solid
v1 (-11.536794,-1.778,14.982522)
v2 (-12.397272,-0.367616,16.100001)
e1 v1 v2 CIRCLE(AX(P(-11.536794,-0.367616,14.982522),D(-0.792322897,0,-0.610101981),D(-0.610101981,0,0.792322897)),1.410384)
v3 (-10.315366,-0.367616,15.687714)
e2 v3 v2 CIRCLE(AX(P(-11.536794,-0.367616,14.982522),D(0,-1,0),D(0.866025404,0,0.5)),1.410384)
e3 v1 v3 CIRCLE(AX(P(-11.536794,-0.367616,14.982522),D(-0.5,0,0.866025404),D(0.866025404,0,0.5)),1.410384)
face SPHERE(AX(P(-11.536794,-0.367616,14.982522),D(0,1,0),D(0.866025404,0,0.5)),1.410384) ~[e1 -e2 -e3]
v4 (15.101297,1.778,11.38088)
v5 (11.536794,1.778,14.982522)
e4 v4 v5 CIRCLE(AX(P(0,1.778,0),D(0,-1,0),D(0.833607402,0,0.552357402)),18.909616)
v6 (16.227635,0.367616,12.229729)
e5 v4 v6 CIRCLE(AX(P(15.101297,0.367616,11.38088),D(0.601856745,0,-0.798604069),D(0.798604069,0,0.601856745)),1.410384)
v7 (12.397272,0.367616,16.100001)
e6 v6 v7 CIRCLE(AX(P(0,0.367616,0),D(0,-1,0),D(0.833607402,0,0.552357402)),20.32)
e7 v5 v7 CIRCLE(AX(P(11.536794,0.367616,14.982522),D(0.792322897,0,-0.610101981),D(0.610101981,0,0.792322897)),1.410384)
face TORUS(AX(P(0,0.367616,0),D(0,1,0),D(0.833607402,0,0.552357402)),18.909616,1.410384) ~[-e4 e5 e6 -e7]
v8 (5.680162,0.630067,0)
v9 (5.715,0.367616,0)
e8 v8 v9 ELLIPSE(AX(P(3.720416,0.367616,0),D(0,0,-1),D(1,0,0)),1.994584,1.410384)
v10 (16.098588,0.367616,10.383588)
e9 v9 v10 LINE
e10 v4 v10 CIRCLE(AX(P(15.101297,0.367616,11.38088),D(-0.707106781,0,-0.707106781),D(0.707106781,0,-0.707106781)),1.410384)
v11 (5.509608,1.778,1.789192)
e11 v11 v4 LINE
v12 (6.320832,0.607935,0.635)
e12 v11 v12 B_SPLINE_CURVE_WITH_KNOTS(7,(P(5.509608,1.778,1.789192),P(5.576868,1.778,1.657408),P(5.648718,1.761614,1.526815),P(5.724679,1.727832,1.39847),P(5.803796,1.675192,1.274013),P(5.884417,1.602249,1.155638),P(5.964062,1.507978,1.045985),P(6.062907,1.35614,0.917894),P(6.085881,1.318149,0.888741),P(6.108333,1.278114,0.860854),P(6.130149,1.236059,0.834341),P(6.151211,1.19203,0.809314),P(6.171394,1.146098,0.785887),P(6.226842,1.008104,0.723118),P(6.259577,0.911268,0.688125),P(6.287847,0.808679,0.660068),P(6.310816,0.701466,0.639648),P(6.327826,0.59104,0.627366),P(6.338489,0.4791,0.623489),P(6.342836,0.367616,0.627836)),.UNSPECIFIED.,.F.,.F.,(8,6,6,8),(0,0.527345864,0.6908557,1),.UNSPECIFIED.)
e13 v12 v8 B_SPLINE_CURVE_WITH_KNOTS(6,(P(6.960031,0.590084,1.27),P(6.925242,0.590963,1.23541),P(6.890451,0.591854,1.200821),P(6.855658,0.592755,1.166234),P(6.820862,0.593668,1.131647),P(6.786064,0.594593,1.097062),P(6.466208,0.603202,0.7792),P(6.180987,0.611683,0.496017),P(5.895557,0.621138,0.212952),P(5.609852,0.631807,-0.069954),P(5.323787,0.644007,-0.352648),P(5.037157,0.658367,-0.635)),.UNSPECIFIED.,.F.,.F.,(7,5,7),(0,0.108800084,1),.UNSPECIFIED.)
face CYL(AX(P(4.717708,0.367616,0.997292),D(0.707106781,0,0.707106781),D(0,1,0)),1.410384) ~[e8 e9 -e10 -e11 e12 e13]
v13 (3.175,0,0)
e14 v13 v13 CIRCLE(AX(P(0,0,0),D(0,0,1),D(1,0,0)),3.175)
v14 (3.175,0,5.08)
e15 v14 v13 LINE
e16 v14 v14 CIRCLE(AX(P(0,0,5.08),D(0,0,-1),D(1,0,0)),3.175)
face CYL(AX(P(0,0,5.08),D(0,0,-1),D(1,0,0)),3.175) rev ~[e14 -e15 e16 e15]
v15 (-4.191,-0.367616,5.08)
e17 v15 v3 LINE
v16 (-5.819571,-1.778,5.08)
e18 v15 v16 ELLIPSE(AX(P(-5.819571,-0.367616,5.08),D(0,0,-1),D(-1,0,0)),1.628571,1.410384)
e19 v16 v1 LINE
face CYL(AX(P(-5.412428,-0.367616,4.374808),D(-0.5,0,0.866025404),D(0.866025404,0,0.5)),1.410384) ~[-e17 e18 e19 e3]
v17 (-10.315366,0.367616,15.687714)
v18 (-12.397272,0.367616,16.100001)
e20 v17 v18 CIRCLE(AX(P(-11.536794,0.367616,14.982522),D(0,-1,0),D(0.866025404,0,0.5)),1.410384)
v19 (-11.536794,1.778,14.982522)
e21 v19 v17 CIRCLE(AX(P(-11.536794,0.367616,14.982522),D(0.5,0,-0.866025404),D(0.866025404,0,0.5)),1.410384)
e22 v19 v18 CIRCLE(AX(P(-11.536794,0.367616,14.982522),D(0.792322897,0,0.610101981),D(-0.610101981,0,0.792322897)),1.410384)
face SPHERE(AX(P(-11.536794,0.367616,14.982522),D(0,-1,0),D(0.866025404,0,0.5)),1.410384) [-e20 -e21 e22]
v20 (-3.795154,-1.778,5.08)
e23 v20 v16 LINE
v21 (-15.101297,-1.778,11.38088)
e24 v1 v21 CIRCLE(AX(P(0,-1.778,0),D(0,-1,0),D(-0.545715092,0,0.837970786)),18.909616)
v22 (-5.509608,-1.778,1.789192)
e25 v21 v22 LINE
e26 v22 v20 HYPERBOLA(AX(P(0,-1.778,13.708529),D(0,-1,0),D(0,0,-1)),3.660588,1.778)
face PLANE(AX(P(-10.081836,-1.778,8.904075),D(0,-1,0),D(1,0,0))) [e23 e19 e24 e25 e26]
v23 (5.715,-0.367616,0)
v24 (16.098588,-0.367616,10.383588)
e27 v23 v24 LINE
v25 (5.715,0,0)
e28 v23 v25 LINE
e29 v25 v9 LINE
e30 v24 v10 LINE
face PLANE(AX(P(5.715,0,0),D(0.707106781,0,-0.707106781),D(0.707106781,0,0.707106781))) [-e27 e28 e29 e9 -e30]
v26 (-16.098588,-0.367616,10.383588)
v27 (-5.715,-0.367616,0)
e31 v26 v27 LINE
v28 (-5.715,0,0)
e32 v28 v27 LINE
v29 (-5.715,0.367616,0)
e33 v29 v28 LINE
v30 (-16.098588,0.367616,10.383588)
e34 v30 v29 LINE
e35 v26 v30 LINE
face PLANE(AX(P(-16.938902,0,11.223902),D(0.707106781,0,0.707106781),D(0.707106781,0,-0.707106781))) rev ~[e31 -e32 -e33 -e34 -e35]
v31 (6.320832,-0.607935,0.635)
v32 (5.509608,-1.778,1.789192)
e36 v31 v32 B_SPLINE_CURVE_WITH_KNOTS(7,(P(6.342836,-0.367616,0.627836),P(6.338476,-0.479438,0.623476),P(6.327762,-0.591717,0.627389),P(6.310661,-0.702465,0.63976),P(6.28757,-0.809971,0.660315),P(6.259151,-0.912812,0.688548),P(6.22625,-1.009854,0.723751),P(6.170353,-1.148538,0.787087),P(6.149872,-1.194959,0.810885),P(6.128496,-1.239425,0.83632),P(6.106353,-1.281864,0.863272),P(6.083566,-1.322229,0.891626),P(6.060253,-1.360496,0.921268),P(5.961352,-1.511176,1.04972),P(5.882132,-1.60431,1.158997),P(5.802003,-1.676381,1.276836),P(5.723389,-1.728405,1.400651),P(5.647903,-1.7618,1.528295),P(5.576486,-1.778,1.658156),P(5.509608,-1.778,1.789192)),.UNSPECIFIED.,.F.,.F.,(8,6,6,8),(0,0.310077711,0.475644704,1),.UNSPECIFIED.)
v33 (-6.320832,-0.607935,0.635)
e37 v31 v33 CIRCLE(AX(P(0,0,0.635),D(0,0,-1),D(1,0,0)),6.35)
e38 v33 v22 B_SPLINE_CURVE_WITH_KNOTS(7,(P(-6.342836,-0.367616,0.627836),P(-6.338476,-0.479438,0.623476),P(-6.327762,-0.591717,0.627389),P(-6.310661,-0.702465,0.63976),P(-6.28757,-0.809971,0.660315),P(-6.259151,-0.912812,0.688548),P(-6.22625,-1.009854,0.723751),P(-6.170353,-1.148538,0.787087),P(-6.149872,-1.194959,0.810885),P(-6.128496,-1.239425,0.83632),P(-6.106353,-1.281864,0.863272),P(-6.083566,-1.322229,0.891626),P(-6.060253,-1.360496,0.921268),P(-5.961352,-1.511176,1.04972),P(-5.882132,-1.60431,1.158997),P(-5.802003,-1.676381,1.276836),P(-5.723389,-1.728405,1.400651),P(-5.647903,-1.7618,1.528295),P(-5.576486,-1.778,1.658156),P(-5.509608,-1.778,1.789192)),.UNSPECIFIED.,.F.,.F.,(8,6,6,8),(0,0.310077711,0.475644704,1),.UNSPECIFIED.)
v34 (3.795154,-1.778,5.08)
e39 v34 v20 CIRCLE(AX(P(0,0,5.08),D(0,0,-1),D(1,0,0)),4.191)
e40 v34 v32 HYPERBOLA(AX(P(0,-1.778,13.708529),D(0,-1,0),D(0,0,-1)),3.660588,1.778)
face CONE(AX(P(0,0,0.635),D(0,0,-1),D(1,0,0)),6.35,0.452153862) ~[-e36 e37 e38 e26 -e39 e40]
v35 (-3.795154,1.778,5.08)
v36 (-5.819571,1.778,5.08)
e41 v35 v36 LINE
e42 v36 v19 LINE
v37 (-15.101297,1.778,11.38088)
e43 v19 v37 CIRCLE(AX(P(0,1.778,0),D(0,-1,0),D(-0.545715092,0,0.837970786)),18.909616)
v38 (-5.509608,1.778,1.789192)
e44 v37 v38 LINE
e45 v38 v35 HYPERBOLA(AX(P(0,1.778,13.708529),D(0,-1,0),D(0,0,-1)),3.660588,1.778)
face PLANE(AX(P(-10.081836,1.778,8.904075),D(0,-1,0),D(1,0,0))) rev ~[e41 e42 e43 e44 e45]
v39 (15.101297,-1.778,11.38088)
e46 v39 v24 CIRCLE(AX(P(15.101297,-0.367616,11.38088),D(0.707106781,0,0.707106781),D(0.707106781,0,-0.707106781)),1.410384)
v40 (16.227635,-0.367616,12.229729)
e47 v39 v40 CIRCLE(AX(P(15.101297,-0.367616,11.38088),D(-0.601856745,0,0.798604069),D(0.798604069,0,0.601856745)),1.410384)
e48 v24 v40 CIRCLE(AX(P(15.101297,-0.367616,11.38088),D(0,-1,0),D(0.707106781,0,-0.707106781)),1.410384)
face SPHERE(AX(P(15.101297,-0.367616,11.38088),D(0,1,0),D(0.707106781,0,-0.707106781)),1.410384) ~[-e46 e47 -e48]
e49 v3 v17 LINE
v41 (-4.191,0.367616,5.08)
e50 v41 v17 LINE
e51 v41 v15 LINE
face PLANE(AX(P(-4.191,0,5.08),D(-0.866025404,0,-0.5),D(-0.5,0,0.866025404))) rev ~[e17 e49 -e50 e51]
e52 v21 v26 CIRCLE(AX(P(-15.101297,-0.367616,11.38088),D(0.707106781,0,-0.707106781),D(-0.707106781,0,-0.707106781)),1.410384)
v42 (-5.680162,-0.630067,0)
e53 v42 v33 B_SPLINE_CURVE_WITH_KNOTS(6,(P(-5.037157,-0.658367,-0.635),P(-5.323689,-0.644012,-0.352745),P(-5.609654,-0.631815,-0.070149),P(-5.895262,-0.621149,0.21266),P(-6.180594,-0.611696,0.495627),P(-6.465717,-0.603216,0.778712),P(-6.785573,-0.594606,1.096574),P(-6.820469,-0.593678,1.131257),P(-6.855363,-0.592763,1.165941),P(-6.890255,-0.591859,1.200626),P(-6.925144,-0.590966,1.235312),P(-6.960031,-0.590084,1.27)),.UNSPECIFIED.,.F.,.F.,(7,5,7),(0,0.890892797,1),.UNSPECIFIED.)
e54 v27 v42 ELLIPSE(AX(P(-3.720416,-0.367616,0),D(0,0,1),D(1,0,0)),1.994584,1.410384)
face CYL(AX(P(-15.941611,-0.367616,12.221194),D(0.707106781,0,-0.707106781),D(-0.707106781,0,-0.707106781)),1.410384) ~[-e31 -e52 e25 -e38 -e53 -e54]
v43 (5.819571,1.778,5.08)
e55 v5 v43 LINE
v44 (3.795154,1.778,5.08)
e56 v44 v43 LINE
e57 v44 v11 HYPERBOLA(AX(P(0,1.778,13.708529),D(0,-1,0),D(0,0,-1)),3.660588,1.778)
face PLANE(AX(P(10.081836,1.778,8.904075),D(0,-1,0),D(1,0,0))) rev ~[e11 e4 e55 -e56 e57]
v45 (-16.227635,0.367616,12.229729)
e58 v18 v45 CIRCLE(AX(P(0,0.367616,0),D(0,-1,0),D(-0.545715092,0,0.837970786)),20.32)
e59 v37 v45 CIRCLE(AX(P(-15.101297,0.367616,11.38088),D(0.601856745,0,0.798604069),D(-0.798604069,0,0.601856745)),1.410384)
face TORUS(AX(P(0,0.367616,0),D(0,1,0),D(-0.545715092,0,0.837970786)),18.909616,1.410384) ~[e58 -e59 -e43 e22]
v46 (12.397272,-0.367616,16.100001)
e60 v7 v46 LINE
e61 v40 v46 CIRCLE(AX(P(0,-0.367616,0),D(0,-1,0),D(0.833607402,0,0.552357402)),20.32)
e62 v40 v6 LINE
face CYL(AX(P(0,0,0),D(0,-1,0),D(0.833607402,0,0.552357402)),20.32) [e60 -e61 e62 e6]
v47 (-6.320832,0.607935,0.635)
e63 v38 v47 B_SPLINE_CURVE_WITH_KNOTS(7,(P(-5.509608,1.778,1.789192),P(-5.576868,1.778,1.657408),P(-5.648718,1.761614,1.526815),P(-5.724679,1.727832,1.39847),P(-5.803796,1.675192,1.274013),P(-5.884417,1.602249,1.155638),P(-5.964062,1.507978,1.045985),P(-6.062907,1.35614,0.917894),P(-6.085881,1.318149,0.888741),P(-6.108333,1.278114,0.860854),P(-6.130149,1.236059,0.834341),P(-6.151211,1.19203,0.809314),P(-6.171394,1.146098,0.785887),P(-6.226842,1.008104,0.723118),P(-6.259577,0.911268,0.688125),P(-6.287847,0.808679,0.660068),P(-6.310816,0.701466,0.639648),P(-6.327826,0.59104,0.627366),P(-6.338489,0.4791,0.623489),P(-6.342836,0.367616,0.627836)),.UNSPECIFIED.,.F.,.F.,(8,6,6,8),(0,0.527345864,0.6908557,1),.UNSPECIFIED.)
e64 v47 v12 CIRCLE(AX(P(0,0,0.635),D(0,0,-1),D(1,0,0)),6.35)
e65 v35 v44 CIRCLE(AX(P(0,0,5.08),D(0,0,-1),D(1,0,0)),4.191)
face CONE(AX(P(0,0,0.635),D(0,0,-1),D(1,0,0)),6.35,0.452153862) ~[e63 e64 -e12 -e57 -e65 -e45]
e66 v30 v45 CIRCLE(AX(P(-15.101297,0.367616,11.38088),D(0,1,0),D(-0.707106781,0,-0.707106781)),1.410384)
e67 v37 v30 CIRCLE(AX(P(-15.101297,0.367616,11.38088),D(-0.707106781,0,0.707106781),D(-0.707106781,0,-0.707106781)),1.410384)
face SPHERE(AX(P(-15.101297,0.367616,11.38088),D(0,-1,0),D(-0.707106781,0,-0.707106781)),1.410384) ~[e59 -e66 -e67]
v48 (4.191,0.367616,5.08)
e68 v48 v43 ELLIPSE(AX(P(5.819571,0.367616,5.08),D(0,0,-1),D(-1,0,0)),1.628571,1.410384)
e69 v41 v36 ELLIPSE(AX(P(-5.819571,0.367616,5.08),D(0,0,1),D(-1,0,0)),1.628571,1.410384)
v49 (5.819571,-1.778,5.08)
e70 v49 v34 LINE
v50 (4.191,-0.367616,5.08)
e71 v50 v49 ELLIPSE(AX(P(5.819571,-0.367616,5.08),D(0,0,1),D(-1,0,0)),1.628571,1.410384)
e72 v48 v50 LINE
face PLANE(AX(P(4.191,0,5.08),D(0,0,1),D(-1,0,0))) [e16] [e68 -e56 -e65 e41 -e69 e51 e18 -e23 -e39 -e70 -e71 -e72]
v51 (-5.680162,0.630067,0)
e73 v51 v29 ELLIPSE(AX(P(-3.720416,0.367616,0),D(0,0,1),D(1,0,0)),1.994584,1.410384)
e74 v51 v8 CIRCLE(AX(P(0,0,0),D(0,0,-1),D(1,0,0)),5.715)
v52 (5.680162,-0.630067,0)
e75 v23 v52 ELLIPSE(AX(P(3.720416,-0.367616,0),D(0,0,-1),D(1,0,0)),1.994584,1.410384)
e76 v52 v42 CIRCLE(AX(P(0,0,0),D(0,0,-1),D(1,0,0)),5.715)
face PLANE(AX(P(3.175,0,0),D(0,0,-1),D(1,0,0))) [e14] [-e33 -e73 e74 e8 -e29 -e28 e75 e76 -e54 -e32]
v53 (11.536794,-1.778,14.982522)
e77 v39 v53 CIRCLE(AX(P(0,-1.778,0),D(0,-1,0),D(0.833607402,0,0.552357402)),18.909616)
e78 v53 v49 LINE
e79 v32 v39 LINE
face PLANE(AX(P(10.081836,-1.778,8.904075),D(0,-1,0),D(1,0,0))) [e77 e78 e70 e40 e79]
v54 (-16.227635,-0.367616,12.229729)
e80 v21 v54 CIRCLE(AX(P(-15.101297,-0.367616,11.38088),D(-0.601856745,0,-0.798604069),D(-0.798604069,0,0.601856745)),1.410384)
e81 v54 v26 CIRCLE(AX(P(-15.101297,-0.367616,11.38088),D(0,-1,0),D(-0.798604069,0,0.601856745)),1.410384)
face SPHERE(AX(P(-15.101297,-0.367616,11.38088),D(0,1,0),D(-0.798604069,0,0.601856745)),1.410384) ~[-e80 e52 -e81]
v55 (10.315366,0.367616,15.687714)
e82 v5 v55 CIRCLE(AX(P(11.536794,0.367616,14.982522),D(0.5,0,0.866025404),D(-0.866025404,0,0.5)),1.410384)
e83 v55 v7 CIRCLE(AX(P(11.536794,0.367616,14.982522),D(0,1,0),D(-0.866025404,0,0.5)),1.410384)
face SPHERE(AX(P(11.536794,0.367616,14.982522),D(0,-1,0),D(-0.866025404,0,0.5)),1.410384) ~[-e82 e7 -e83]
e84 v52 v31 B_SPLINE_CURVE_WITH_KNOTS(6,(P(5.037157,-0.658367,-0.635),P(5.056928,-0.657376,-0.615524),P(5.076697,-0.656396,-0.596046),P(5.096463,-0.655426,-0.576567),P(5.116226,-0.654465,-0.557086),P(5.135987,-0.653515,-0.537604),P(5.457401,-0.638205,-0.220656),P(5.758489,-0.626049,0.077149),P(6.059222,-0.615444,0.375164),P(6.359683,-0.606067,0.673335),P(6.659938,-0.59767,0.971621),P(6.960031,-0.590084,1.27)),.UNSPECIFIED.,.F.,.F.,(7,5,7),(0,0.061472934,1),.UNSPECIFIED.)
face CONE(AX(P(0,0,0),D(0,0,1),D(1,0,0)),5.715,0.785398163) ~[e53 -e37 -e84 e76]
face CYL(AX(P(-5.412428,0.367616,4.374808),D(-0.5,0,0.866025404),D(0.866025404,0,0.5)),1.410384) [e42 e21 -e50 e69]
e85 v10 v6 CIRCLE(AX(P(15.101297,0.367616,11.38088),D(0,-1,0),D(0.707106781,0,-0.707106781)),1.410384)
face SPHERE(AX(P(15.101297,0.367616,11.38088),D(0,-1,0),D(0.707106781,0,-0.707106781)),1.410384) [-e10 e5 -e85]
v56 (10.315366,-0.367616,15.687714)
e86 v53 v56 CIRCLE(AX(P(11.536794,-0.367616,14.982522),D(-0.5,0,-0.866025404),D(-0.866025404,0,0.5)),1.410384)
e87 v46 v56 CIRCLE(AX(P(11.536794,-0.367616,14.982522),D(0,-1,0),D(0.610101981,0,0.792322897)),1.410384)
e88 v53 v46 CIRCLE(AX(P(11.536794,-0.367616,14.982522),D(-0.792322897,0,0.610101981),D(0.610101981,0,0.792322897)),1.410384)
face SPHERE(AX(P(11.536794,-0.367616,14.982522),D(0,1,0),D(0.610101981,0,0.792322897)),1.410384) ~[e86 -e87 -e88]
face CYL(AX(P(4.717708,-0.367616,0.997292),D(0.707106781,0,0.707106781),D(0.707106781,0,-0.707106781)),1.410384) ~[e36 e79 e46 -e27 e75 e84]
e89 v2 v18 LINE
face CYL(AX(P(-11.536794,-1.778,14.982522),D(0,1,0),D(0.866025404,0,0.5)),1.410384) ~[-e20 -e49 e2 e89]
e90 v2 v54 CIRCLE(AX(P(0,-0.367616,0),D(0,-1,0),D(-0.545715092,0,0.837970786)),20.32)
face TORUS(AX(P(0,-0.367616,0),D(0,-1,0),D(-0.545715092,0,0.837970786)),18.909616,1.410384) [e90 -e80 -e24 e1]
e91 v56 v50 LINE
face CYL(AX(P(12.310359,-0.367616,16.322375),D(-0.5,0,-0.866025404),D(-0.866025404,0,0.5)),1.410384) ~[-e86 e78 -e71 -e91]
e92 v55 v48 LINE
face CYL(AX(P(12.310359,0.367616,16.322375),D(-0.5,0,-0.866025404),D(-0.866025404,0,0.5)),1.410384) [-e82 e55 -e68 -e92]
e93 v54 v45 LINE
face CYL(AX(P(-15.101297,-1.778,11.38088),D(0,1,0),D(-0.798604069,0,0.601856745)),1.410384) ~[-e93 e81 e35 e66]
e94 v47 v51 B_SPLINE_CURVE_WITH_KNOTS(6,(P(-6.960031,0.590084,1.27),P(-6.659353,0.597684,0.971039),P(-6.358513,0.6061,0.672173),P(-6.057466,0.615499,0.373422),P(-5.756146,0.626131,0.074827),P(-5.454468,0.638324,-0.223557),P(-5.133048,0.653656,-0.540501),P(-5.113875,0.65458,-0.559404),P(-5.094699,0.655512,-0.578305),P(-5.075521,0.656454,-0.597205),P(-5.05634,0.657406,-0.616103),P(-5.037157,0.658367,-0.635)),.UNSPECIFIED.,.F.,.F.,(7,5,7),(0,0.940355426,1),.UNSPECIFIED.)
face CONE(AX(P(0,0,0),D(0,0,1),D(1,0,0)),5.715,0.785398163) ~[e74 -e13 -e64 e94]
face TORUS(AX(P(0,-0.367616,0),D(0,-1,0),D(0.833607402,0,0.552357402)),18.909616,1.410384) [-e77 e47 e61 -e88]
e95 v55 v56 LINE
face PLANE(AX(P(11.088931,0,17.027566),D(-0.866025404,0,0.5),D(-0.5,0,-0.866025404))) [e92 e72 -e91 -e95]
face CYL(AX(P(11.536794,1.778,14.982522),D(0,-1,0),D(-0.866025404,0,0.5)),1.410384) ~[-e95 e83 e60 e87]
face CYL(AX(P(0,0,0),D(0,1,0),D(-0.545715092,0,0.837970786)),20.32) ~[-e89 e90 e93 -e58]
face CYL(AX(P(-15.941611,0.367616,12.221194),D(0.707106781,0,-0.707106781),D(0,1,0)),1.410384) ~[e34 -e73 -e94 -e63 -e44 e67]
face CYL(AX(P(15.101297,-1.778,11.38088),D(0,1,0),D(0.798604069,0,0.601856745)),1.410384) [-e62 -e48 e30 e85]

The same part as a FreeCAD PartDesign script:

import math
import FreeCAD as App
import Part
import Sketcher
from FreeCAD import Vector
Q = App.Units.Quantity


def edges_at(feature, points):
    """Names of the edges that pass closest to the given points."""
    edges = feature.Shape.Edges
    near = lambda p: min(range(len(edges)), key=lambda i: edges[i].distToShape(Part.Vertex(*p))[0])
    return sorted({f"Edge{near(p) + 1}" for p in points})


def add_polygon(sketch, points):
    """Adds a closed chain of lines whose ends are joined by coincident constraints."""
    first, n = sketch.GeometryCount, len(points)
    for a, b in zip(points, points[1:] + points[:1]):
        sketch.addGeometry(Part.LineSegment(App.Vector(*a, 0), App.Vector(*b, 0)), False)
    for i in range(n):
        sketch.addConstraint(Sketcher.Constraint("Coincident", first + i, 2, first + (i + 1) % n, 1))

doc = App.newDocument("Part")
params = doc.addObject("Spreadsheet::Sheet", "Params")
for row, (alias, value) in enumerate([
    ("sketch1_width", "0.1 in"),
    ("sketch1_height", "0.2 in"),
    ("sketch1_width2", "0.04 in"),
    ("revolution_angle", "360 deg"),
    ("sketch2_radius", "0.8 in"),
    ("sketch2_width", "0.1 in"),
    ("sketch2_height", "0.2 in"),
    ("sketch2_width2", "0.04 in"),
    ("pad1_length", "0.14 in"),
    ("fillet_radius", "1.410384 mm"),
    ("fillet2_radius", "1.410384 mm"),
], start=1):
    params.set(f"A{row}", alias)
    params.set(f"B{row}", "=" + value)
    params.setAlias(f"B{row}", alias)

body = doc.addObject("PartDesign::Body", "Body")

sketch1 = body.newObject("Sketcher::SketchObject", "Sketch")
sketch1.AttachmentSupport = (doc.getObject("XZ_Plane"), [""])
sketch1.MapMode = "FlatFace"
add_polygon(sketch1, [(3.2, 5.1), (3.2, 0), (5.7, 0), (6.3, 0.6), (4.2, 5.1)])
sketch1.addConstraint([
    Sketcher.Constraint("Vertical", 0),
    Sketcher.Constraint("Horizontal", 1),
    Sketcher.Constraint("Horizontal", 4),
    Sketcher.Constraint("PointOnObject", 0, 2, -1),
    Sketcher.Constraint("DistanceX", 1, 1, 1, 2, Q("0.1 in")),
    Sketcher.Constraint("DistanceY", 0, 2, 0, 1, Q("0.2 in")),
    Sketcher.Constraint("Angle", 2, Q("45 deg")),
    Sketcher.Constraint("DistanceX", 4, 2, 4, 1, Q("0.04 in")),
    Sketcher.Constraint("DistanceX", -1, 1, 2, 2, Q("0.25 in")),
    Sketcher.Constraint("DistanceX", -1, 1, 0, 2, Q("0.125 in")),
])
sketch1.setExpression("Constraints[9]", "Params.sketch1_width")
sketch1.setExpression("Constraints[10]", "Params.sketch1_height")
sketch1.setExpression("Constraints[12]", "Params.sketch1_width2")
revolution = body.newObject("PartDesign::Revolution", "Revolution")
revolution.Profile = sketch1
revolution.ReferenceAxis = (sketch1, ["V_Axis"])
revolution.setExpression("Angle", "Params.revolution_angle")

sketch2 = body.newObject("Sketcher::SketchObject", "Sketch001")
sketch2.AttachmentSupport = (doc.getObject("XZ_Plane"), [""])
sketch2.MapMode = "FlatFace"
sketch2.addGeometry([
    Part.LineSegment(Vector(-16.9, 11.2, 0), Vector(-5.7, 0, 0)),
    Part.LineSegment(Vector(-5.7, 0, 0), Vector(-3.2, 0, 0)),
    Part.LineSegment(Vector(-3.2, 0, 0), Vector(-3.2, 5.1, 0)),
    Part.LineSegment(Vector(-3.2, 5.1, 0), Vector(-4.2, 5.1, 0)),
    Part.LineSegment(Vector(-4.2, 5.1, 0), Vector(-11.1, 17, 0)),
    Part.ArcOfCircle(Part.Circle(Vector(0, 0, 0), Vector(0, 0, 1), 20.3), math.radians(123), math.radians(146)),
    Part.ArcOfCircle(Part.Circle(Vector(0, 0, 0), Vector(0, 0, 1), 20.3), math.radians(34), math.radians(57)),
    Part.LineSegment(Vector(11.1, 17, 0), Vector(4.2, 5.1, 0)),
    Part.LineSegment(Vector(4.2, 5.1, 0), Vector(3.2, 5.1, 0)),
    Part.LineSegment(Vector(3.2, 5.1, 0), Vector(3.2, 0, 0)),
    Part.LineSegment(Vector(3.2, 0, 0), Vector(5.7, 0, 0)),
    Part.LineSegment(Vector(5.7, 0, 0), Vector(16.9, 11.2, 0)),
], False)
sketch2.addConstraint([
    Sketcher.Constraint("Coincident", 0, 2, 1, 1),
    Sketcher.Constraint("Coincident", 1, 2, 2, 1),
    Sketcher.Constraint("Coincident", 2, 2, 3, 1),
    Sketcher.Constraint("Coincident", 3, 2, 4, 1),
    Sketcher.Constraint("Coincident", 4, 2, 5, 1),
    Sketcher.Constraint("Coincident", 5, 2, 0, 1),
    Sketcher.Constraint("Coincident", 6, 2, 7, 1),
    Sketcher.Constraint("Coincident", 7, 2, 8, 1),
    Sketcher.Constraint("Coincident", 8, 2, 9, 1),
    Sketcher.Constraint("Coincident", 9, 2, 10, 1),
    Sketcher.Constraint("Coincident", 10, 2, 11, 1),
    Sketcher.Constraint("Coincident", 11, 2, 6, 1),
    Sketcher.Constraint("Horizontal", 1),
    Sketcher.Constraint("Vertical", 2),
    Sketcher.Constraint("Horizontal", 3),
    Sketcher.Constraint("Horizontal", 8),
    Sketcher.Constraint("Vertical", 9),
    Sketcher.Constraint("Horizontal", 10),
    Sketcher.Constraint("Coincident", 5, 3, -1, 1),
    Sketcher.Constraint("Coincident", 6, 3, -1, 1),
    Sketcher.Constraint("Equal", 5, 6),
    Sketcher.Constraint("Symmetric", 1, 2, 9, 2, -1, 1),
    Sketcher.Constraint("Symmetric", 3, 2, 7, 2, -2),
    Sketcher.Constraint("Symmetric", 0, 2, 10, 2, -2),
    Sketcher.Constraint("Perpendicular", 0, 11),
    Sketcher.Constraint("Horizontal", 4, 2, 6, 2),
    Sketcher.Constraint("Horizontal", 5, 2, 11, 2),
    Sketcher.Constraint("Radius", 5, Q("0.8 in")),
    Sketcher.Constraint("DistanceX", 1, 1, 1, 2, Q("0.1 in")),
    Sketcher.Constraint("DistanceY", 2, 1, 2, 2, Q("0.2 in")),
    Sketcher.Constraint("Angle", 4, Q("120 deg")),
    Sketcher.Constraint("DistanceX", 3, 2, 3, 1, Q("0.04 in")),
    Sketcher.Constraint("DistanceX", 2, 2, 7, 2, Q("0.29 in")),
])
sketch2.setExpression("Constraints[27]", "Params.sketch2_radius")
sketch2.setExpression("Constraints[28]", "Params.sketch2_width")
sketch2.setExpression("Constraints[29]", "Params.sketch2_height")
sketch2.setExpression("Constraints[31]", "Params.sketch2_width2")
pad1 = body.newObject("PartDesign::Pad", "Pad")
pad1.Profile = sketch2
pad1.setExpression("Length", "Params.pad1_length")
pad1.Midplane = True
doc.recompute()

fillet = body.newObject("PartDesign::Fillet", "Fillet")
fillet.Base = (pad1, edges_at(pad1, [
    (-7.64, -1.778, 11.054),
    (-11.327, -1.778, 5.612),
    (-11.327, 1.778, 5.612),
    (-7.64, 1.778, 11.054),
    (-14.311, 1.778, 14.425),
    (-16.939, 0, 11.224),
    (-14.311, -1.778, 14.425),
    (-11.089, 0, 17.028),
]))
fillet.setExpression("Radius", "Params.fillet_radius")
doc.recompute()

fillet2 = body.newObject("PartDesign::Fillet", "Fillet001")
fillet2.Base = (fillet, edges_at(fillet, [
    (11.327, 1.778, 5.612),
    (11.327, -1.778, 5.612),
    (14.311, 1.778, 14.425),
    (11.089, 0, 17.028),
    (14.311, -1.778, 14.425),
    (16.939, 0, 11.224),
    (7.64, 1.778, 11.054),
    (7.64, -1.778, 11.054),
]))
fillet2.setExpression("Radius", "Params.fillet2_radius")

doc.recompute()
